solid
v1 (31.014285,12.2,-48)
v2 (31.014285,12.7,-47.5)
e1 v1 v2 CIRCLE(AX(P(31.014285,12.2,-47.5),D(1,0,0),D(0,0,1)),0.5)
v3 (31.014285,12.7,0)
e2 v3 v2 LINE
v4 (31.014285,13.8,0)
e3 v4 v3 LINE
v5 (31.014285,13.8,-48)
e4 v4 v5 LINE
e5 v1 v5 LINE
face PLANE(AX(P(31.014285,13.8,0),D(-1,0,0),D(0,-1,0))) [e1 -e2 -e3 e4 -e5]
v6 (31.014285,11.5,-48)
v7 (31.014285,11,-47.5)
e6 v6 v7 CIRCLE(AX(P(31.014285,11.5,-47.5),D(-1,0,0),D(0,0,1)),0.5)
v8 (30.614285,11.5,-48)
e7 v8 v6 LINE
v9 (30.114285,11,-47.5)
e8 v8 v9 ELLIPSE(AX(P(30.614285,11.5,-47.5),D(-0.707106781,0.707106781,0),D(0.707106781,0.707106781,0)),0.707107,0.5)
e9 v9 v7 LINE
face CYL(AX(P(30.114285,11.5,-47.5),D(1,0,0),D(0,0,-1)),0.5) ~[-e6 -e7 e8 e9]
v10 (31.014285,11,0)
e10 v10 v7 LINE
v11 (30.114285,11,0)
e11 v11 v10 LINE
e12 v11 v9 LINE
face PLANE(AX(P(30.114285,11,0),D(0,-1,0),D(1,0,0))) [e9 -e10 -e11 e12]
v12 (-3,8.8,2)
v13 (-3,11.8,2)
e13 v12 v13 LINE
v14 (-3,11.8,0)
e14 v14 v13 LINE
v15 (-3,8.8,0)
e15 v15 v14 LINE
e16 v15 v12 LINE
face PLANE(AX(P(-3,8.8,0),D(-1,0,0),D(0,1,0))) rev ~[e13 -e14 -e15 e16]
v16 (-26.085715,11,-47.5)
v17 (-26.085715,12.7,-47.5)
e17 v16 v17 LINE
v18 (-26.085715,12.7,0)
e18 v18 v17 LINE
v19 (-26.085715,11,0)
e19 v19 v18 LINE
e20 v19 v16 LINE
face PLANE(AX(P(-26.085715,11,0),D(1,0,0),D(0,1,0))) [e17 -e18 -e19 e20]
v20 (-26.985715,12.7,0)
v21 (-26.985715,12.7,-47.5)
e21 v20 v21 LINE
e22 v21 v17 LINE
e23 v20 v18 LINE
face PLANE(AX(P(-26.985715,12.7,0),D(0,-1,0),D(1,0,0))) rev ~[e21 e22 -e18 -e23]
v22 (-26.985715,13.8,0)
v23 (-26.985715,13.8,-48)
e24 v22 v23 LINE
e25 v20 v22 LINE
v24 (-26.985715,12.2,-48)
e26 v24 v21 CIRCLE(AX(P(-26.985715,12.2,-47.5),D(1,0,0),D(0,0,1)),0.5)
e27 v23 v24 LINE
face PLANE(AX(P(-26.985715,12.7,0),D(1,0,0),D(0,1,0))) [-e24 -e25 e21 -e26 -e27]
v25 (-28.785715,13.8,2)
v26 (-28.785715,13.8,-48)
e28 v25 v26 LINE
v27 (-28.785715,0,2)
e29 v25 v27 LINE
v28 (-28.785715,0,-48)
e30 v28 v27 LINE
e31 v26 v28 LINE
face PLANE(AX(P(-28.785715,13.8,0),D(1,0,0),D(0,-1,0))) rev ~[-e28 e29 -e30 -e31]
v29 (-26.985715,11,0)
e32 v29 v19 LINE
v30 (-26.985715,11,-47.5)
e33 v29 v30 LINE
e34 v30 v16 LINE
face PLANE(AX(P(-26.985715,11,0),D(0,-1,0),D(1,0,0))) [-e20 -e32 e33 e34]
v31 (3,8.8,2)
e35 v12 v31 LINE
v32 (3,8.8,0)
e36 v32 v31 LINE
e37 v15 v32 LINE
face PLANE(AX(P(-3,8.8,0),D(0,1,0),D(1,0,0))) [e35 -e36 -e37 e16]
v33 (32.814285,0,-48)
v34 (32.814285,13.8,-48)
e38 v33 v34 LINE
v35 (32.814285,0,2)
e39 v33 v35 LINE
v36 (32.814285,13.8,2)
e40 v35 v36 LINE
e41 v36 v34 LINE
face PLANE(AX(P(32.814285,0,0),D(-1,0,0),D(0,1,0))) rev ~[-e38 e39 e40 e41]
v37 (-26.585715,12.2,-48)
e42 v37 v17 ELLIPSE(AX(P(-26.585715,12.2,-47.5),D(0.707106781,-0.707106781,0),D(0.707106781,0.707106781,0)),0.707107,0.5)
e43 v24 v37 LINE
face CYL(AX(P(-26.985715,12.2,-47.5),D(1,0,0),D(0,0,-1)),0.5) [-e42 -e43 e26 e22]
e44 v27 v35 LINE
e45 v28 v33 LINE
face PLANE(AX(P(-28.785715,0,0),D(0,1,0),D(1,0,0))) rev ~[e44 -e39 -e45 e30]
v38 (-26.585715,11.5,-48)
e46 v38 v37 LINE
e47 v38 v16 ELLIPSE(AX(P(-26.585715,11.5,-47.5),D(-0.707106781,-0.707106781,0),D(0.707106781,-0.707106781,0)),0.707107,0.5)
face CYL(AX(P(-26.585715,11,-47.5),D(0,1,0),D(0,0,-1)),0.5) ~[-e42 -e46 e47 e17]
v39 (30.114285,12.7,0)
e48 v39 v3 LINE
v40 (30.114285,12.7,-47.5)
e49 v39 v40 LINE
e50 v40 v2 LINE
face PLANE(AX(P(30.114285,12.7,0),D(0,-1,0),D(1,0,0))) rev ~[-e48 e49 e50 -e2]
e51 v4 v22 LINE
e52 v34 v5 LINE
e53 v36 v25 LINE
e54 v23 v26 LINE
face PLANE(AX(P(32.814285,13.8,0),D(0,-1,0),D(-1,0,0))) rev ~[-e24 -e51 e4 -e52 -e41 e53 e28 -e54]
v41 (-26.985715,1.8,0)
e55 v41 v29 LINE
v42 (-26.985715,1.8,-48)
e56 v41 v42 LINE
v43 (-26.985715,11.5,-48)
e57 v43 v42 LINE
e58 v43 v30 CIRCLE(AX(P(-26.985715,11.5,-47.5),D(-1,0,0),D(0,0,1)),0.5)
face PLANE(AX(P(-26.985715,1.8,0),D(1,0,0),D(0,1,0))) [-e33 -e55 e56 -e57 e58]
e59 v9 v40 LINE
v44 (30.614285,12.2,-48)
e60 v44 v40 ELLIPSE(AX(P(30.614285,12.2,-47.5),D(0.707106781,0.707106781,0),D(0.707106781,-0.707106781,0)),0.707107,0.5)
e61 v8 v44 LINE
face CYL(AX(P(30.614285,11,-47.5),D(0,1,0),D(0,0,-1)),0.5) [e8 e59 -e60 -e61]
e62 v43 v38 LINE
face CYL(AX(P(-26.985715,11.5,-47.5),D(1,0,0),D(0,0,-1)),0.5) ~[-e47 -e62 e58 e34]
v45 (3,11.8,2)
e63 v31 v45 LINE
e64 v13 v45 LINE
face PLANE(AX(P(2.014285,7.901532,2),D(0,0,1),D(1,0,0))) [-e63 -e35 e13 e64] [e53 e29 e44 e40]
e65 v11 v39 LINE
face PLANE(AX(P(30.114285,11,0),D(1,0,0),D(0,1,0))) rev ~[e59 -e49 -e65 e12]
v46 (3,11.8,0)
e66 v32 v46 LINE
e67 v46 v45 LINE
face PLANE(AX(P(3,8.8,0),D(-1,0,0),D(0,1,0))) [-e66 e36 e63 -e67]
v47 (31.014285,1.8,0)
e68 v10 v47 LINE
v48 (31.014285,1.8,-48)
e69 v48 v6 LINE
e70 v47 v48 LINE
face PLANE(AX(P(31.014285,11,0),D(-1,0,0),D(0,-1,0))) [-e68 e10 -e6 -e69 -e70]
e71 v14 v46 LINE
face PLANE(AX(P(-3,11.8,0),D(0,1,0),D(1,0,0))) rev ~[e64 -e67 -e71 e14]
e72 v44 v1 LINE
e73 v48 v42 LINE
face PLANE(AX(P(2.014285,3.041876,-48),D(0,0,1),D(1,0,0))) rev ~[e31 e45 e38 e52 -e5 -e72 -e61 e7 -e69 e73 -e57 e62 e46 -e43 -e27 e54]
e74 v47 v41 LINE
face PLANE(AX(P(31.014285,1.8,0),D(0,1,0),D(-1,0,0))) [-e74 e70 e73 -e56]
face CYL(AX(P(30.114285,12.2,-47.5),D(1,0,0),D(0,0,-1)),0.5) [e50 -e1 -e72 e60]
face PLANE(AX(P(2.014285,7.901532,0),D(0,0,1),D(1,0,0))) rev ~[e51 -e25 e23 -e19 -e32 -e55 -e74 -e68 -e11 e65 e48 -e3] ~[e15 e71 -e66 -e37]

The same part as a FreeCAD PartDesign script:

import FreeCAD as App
import Part
import Sketcher
Q = App.Units.Quantity


def edges_at(feature, points):
    """Names of the edges that pass closest to the given points."""
    edges = feature.Shape.Edges
    near = lambda p: min(range(len(edges)), key=lambda i: edges[i].distToShape(Part.Vertex(*p))[0])
    return sorted({f"Edge{near(p) + 1}" for p in points})


def add_polygon(sketch, points):
    """Adds a closed chain of lines whose ends are joined by coincident constraints."""
    first, n = sketch.GeometryCount, len(points)
    for a, b in zip(points, points[1:] + points[:1]):
        sketch.addGeometry(Part.LineSegment(App.Vector(*a, 0), App.Vector(*b, 0)), False)
    for i in range(n):
        sketch.addConstraint(Sketcher.Constraint("Coincident", first + i, 2, first + (i + 1) % n, 1))

doc = App.newDocument("Part")
body = doc.addObject("PartDesign::Body", "Body")

# Sketch on XY plane
sketch1 = body.newObject("Sketcher::SketchObject", "Sketch")
sketch1.AttachmentSupport = (doc.getObject("XY_Plane"), [""])
sketch1.MapMode = "FlatFace"
add_polygon(sketch1, [(-26.985715, 13.8), (-28.785715, 13.8), (-28.785715, 0), (32.814285, 0), (32.814285, 13.8), (31.014285, 13.8), (31.014285, 12.7), (30.114285, 12.7), (30.114285, 11), (31.014285, 11), (31.014285, 1.8), (-26.985715, 1.8), (-26.985715, 11), (-26.085715, 11), (-26.085715, 12.7), (-26.985715, 12.7)])  # lines 0-15
sketch1.addConstraint([
    Sketcher.Constraint("Horizontal", 0),
    Sketcher.Constraint("Vertical", 1),
    Sketcher.Constraint("Horizontal", 2),
    Sketcher.Constraint("Vertical", 3),
    Sketcher.Constraint("Horizontal", 4),
    Sketcher.Constraint("Vertical", 5),
    Sketcher.Constraint("Horizontal", 6),
    Sketcher.Constraint("Vertical", 7),
    Sketcher.Constraint("Horizontal", 8),
    Sketcher.Constraint("Vertical", 9),
    Sketcher.Constraint("Horizontal", 10),
    Sketcher.Constraint("Vertical", 11),
    Sketcher.Constraint("Horizontal", 12),
    Sketcher.Constraint("Vertical", 13),
    Sketcher.Constraint("Horizontal", 14),
    Sketcher.Constraint("Vertical", 15),
    Sketcher.Constraint("PointOnObject", 1, 2, -1),
    Sketcher.Constraint("Horizontal", 0, 2, 3, 2),
    Sketcher.Constraint("Horizontal", 8, 2, 11, 2),
    Sketcher.Constraint("Horizontal", 6, 2, 13, 2),
    Sketcher.Constraint("Vertical", 5, 2, 8, 2),
    Sketcher.Constraint("Vertical", 11, 2, 14, 2),
    Sketcher.Constraint("Equal", 0, 4),
    Sketcher.Constraint("Equal", 8, 12),
    Sketcher.Constraint("DistanceX", 10, 2, 10, 1, Q("58 mm")),
    Sketcher.Constraint("DistanceX", 0, 2, 0, 1, Q("1.8 mm")),
    Sketcher.Constraint("DistanceX", 6, 2, 6, 1, Q("0.9 mm")),
    Sketcher.Constraint("DistanceY", 1, 2, 1, 1, Q("13.8 mm")),
    Sketcher.Constraint("DistanceY", 5, 2, 5, 1, Q("1.1 mm")),
    Sketcher.Constraint("DistanceY", 7, 2, 7, 1, Q("1.7 mm")),
    Sketcher.Constraint("DistanceY", 9, 2, 9, 1, Q("9.2 mm")),
    Sketcher.Constraint("DistanceX", 0, 2, -1, 1, Q("28.785715 mm")),
])
pad1 = body.newObject("PartDesign::Pad", "Pad")
pad1.Profile = sketch1
pad1.Length = 48
pad1.Reversed = True

# Sketch on XY plane
sketch2 = body.newObject("Sketcher::SketchObject", "Sketch001")
sketch2.AttachmentSupport = (doc.getObject("XY_Plane"), [""])
sketch2.MapMode = "FlatFace"
add_polygon(sketch2, [(-28.785715, 13.8), (-28.785715, 0), (32.814285, 0), (32.814285, 13.8)])  # lines 0-3
add_polygon(sketch2, [(3, 8.8), (-3, 8.8), (-3, 11.8), (3, 11.8)])  # lines 4-7
sketch2.addConstraint([
    Sketcher.Constraint("Vertical", 0),
    Sketcher.Constraint("Horizontal", 1),
    Sketcher.Constraint("Vertical", 2),
    Sketcher.Constraint("Horizontal", 3),
    Sketcher.Constraint("Horizontal", 4),
    Sketcher.Constraint("Vertical", 5),
    Sketcher.Constraint("Horizontal", 6),
    Sketcher.Constraint("Vertical", 7),
    Sketcher.Constraint("PointOnObject", 0, 2, -1),
    Sketcher.Constraint("DistanceX", 4, 2, 4, 1, Q("6 mm")),
    Sketcher.Constraint("DistanceY", 5, 1, 5, 2, Q("3 mm")),
    Sketcher.Constraint("DistanceX", 1, 1, 1, 2, Q("61.6 mm")),
    Sketcher.Constraint("DistanceY", 0, 2, 0, 1, Q("13.8 mm")),
    Sketcher.Constraint("DistanceX", 4, 2, -1, 1, Q("3 mm")),
    Sketcher.Constraint("DistanceY", 4, 2, 3, 2, Q("5 mm")),
    Sketcher.Constraint("DistanceX", 0, 2, -1, 1, Q("28.785715 mm")),
])
pad2 = body.newObject("PartDesign::Pad", "Pad001")
pad2.Profile = sketch2
pad2.Length = 2
doc.recompute()

fillet = body.newObject("PartDesign::Fillet", "Fillet")
fillet.Base = (pad2, edges_at(pad2, [
    (-26.536, 11, -48),
    (-26.536, 12.7, -48),
    (-26.086, 11.85, -48),
    (30.564, 11, -48),
    (30.564, 12.7, -48),
    (30.114, 11.85, -48),
]))
fillet.Radius = 0.5

doc.recompute()
